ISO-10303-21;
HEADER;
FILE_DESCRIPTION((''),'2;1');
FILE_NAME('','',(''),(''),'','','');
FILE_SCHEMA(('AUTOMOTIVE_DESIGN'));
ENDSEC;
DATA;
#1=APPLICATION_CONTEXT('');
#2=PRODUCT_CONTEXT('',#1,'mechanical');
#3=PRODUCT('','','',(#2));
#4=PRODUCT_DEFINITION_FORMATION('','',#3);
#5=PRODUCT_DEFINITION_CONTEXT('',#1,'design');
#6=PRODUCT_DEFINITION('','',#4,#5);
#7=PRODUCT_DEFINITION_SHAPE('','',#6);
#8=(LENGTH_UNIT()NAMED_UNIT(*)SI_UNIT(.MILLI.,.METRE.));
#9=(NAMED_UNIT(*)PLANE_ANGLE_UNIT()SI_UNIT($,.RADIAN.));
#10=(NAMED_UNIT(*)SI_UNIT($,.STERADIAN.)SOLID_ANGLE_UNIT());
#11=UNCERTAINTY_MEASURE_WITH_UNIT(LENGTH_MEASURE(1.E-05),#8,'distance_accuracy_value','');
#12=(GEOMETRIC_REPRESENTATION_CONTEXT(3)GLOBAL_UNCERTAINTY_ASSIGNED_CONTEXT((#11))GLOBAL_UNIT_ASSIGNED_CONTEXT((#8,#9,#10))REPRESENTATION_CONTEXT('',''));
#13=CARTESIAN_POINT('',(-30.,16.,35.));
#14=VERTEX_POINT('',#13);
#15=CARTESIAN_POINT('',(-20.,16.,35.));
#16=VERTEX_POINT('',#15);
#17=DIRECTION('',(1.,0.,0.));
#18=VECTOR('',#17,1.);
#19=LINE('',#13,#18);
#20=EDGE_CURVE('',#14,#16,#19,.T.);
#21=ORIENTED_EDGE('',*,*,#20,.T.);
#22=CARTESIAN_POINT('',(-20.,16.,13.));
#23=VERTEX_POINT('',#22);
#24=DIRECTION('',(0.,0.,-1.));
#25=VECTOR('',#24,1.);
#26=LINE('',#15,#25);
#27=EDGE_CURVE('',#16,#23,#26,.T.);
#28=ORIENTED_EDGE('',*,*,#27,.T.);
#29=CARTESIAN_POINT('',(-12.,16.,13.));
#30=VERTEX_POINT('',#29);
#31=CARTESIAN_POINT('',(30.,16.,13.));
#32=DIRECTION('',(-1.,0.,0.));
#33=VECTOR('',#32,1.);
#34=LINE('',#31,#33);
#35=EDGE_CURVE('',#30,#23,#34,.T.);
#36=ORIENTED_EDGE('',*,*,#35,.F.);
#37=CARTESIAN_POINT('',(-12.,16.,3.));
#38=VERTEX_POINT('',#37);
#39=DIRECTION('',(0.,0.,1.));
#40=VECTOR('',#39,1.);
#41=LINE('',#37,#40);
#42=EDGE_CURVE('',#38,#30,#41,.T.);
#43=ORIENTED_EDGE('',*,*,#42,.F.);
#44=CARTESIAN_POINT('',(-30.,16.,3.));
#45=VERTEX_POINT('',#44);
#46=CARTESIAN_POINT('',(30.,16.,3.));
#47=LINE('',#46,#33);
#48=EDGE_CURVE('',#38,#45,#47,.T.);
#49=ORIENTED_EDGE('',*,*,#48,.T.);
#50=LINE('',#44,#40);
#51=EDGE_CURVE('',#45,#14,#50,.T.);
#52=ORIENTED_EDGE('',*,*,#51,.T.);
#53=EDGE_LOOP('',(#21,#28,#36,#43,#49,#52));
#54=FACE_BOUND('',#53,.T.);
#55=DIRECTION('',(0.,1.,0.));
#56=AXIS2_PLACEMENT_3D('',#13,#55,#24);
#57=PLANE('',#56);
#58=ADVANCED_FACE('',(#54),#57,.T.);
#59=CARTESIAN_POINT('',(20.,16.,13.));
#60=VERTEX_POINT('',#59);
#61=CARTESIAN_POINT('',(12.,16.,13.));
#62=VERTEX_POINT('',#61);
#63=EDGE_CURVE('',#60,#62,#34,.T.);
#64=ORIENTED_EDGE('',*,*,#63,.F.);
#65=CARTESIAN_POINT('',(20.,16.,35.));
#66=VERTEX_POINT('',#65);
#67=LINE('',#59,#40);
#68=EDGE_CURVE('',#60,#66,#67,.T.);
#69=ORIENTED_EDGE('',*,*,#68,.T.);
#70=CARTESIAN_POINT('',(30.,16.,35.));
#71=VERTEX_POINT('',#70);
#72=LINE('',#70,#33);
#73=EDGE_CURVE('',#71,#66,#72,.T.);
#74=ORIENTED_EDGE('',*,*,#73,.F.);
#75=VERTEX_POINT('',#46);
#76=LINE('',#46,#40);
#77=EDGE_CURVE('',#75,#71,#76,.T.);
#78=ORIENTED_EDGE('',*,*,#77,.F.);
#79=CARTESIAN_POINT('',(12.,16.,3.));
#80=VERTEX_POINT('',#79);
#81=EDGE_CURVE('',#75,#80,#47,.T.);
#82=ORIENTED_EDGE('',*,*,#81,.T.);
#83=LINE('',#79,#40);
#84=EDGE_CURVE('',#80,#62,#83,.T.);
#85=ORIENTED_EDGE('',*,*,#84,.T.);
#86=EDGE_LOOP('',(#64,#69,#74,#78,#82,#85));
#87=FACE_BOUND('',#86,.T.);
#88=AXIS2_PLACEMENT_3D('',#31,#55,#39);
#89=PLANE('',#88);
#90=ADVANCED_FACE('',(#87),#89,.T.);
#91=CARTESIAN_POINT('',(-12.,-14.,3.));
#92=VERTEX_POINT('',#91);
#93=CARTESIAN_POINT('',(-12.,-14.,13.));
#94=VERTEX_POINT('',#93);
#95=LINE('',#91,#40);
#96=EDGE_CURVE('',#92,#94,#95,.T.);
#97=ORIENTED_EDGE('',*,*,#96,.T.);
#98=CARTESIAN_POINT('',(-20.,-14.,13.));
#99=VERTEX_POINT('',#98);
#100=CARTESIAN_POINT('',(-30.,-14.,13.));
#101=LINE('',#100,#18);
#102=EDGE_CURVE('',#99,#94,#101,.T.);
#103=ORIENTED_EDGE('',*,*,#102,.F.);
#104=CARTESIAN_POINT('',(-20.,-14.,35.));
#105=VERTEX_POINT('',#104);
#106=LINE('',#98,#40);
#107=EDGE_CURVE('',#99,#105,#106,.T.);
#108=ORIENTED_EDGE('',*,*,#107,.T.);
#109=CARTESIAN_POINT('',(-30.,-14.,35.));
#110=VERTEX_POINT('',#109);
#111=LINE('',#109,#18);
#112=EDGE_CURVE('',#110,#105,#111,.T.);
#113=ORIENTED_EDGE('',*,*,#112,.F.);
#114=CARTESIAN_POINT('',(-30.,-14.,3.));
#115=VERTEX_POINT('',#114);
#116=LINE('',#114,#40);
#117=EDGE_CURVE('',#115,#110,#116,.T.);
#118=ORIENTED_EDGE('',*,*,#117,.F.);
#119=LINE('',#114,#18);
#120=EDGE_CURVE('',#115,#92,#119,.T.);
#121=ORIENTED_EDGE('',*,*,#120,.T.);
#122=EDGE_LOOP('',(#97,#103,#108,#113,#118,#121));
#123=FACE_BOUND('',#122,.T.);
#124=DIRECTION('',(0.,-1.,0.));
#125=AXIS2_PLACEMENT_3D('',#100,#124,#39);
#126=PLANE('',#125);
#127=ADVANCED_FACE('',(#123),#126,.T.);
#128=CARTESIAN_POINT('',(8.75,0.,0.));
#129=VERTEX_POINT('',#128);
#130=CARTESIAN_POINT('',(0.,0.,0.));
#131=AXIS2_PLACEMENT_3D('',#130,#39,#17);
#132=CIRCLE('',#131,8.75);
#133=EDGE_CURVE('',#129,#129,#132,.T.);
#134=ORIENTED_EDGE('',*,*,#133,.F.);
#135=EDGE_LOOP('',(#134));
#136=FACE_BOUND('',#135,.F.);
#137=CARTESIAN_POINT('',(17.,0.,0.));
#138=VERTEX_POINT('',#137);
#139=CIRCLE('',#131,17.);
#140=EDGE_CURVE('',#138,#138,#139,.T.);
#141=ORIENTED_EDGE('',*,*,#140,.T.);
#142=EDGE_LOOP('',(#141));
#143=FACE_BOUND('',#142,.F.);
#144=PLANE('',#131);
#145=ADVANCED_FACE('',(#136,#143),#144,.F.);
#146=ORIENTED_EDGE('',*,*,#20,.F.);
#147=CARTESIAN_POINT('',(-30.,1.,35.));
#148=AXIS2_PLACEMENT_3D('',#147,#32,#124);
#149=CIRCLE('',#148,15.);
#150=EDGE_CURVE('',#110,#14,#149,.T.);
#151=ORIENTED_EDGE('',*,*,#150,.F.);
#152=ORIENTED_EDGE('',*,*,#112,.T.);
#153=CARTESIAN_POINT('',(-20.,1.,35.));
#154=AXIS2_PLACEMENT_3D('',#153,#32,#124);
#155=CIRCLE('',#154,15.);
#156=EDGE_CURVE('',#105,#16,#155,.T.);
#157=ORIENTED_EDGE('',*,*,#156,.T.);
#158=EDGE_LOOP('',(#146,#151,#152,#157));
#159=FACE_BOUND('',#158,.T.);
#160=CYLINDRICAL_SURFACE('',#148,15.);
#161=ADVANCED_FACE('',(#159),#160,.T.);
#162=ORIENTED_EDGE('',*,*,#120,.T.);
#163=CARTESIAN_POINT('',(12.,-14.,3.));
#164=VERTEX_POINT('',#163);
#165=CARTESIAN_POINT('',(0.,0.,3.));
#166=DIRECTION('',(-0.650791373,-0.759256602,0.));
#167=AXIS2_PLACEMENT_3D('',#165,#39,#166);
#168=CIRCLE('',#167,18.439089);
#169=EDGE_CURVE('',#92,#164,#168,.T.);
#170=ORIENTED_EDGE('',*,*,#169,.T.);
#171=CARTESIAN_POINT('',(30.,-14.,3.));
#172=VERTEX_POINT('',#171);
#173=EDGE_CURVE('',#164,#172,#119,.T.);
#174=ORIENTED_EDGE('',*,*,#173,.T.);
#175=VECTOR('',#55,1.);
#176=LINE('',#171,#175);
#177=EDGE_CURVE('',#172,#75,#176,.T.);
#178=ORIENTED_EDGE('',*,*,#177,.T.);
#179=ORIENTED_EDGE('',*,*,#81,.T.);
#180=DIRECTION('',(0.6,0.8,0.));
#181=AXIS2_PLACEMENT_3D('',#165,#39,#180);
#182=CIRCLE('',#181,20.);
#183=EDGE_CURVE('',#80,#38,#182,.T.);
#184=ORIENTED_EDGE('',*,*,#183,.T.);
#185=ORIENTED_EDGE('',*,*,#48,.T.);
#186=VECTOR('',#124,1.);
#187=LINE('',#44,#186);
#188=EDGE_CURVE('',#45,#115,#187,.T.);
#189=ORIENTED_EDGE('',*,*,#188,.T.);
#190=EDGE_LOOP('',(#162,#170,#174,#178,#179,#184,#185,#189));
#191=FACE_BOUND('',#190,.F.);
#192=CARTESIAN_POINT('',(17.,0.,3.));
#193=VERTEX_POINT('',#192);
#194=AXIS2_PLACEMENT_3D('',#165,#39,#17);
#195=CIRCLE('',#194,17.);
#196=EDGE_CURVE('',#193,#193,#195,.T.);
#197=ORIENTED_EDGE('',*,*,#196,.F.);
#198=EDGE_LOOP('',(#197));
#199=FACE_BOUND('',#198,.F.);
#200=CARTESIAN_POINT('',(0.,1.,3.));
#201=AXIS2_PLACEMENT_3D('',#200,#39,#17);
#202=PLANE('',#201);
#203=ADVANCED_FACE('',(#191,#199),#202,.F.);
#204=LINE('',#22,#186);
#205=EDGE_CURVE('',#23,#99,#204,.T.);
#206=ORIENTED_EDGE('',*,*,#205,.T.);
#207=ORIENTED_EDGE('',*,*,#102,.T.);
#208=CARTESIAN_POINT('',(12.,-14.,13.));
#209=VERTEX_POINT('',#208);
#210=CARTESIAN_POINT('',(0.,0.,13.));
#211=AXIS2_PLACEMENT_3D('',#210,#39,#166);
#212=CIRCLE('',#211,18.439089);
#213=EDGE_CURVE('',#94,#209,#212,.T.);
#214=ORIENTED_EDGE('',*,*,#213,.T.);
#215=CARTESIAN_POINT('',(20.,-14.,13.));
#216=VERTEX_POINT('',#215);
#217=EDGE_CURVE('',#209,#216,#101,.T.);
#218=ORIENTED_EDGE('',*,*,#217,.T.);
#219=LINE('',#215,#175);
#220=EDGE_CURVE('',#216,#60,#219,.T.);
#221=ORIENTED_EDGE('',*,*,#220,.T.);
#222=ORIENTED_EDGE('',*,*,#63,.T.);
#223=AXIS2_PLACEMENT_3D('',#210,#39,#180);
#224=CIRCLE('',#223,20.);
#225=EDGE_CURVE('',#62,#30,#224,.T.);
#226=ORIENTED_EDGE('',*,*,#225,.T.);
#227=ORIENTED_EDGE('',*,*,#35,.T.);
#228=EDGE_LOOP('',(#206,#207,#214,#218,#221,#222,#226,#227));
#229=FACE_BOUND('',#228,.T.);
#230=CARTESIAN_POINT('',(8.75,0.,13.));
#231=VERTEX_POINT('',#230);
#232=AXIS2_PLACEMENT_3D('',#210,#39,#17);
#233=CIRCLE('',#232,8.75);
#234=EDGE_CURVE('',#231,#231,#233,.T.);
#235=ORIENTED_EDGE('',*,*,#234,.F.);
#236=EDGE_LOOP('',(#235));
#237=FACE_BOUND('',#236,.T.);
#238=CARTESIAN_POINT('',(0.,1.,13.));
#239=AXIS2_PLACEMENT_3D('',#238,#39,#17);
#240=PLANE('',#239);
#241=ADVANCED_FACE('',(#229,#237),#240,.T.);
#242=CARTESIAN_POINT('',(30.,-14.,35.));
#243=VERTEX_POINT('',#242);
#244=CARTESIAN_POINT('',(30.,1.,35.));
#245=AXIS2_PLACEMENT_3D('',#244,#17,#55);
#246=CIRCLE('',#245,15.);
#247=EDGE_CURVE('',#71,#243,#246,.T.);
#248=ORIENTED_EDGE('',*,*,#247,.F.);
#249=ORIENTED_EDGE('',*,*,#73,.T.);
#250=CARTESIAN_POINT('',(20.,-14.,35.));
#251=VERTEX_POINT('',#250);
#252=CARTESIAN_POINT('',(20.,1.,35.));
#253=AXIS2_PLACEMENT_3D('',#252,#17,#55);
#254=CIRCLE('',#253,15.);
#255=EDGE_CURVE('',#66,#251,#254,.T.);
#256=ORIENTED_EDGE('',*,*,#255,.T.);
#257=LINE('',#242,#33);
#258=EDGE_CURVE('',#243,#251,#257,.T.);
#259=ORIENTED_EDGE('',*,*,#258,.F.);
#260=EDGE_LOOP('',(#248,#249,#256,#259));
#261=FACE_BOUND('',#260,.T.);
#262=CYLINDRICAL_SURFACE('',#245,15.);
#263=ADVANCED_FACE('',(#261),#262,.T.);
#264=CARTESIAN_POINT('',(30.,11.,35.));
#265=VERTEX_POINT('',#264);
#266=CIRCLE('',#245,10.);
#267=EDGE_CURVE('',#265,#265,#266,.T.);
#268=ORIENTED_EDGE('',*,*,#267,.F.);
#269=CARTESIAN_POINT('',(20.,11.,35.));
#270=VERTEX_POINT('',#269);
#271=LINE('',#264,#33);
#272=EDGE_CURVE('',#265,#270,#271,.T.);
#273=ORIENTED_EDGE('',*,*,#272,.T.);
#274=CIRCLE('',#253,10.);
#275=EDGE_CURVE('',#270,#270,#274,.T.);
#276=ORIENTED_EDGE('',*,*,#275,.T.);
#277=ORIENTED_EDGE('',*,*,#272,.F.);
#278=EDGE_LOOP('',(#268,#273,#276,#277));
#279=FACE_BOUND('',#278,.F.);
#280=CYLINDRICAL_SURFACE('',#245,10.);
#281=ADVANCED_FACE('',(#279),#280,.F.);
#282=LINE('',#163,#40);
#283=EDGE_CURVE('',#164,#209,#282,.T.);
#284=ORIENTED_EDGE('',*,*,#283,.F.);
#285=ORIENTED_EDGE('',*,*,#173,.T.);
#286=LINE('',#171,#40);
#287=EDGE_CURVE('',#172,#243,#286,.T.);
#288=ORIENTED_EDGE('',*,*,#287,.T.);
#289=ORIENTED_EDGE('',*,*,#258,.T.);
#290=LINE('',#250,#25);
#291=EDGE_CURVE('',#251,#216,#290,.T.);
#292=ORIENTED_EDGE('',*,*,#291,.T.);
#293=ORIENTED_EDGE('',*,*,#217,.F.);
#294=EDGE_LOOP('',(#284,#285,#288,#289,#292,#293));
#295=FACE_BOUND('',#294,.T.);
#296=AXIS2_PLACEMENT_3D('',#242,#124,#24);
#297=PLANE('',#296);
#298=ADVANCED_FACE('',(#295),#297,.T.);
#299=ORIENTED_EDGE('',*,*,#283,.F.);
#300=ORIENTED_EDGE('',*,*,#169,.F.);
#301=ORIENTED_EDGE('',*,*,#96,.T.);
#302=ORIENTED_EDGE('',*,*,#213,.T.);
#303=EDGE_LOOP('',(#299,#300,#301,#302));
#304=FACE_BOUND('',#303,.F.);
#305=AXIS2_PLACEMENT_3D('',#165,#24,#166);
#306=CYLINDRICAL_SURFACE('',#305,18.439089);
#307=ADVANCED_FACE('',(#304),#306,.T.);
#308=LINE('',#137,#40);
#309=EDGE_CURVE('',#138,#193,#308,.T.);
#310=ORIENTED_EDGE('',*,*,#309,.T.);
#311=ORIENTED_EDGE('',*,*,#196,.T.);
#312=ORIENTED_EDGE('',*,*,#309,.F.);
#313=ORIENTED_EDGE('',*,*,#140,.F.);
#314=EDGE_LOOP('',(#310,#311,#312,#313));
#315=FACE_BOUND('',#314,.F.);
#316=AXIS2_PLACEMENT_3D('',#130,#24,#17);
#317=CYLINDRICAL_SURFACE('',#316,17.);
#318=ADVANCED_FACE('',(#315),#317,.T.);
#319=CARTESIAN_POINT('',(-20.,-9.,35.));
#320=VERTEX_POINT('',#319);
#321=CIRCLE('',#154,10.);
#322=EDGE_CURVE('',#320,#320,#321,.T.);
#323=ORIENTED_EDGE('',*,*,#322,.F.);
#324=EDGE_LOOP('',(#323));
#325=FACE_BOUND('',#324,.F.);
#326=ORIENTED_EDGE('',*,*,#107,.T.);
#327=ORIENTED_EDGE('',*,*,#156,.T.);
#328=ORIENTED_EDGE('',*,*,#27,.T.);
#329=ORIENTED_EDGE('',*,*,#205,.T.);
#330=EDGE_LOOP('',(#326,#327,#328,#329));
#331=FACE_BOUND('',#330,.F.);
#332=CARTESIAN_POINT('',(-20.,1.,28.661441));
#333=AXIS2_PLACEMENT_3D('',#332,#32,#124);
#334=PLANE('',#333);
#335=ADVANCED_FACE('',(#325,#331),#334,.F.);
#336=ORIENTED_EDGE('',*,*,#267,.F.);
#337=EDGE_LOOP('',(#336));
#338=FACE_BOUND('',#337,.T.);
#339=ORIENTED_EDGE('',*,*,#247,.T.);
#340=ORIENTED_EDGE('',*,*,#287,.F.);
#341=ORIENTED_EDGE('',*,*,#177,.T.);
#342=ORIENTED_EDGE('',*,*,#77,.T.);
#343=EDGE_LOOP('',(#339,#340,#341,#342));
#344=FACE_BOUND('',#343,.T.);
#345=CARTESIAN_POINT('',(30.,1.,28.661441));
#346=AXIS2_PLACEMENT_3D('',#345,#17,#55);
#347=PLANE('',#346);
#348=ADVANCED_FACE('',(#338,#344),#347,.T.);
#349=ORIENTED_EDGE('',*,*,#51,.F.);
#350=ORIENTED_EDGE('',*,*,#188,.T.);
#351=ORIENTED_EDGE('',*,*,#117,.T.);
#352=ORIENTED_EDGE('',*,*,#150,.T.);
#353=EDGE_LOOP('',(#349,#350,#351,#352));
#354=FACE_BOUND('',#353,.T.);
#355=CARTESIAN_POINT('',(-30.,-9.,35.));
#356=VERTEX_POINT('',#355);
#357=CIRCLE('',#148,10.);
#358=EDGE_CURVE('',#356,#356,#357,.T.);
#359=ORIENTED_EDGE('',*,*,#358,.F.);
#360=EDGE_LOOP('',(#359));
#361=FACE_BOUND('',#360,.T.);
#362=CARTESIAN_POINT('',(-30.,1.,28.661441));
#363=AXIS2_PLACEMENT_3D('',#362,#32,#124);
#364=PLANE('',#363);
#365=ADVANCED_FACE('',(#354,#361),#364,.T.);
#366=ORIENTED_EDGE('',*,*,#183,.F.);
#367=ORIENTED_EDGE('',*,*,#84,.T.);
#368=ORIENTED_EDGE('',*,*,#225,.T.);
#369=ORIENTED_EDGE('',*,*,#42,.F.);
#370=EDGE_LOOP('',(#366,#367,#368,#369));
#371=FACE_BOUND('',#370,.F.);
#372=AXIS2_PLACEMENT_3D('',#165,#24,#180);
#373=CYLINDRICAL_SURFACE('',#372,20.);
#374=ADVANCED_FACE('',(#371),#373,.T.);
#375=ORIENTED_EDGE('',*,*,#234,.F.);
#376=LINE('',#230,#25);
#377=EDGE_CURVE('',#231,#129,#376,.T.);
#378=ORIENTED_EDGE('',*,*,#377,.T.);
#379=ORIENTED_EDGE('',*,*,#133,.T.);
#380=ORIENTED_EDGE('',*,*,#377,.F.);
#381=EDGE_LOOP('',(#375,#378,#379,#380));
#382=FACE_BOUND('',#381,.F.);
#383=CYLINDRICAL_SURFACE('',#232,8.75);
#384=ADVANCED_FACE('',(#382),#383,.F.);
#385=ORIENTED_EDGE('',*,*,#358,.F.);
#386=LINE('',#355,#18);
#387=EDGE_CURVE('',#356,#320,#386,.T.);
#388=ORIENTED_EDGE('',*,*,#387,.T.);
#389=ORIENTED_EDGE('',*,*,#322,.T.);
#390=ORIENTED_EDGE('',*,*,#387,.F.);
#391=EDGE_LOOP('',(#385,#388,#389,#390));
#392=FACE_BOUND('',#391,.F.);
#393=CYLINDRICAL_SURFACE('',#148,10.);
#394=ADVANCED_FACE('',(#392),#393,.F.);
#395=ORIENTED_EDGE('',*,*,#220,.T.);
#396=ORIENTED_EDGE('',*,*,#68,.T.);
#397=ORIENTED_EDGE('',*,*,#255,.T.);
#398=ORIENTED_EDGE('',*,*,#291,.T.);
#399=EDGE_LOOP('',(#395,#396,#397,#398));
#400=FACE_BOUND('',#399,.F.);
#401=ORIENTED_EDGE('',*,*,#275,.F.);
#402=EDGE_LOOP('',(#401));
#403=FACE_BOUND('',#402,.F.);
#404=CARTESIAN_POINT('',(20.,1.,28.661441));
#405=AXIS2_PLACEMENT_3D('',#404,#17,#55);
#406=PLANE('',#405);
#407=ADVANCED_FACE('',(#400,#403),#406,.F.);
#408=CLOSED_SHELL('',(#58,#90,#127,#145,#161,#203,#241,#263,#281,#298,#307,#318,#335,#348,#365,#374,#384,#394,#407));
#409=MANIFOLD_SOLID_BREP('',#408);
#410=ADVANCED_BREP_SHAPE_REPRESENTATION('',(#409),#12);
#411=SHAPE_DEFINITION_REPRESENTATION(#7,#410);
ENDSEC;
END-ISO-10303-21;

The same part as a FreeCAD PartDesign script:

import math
import FreeCAD as App
import Part
import Sketcher

doc = App.newDocument("Part")
params = doc.addObject("Spreadsheet::Sheet", "Params")
for row, (alias, value) in enumerate([
    ("sketch1_diameter", "34 mm"),
    ("pad1_length", "3 mm"),
    ("sketch2_radius", "20 mm"),
    ("sketch2_width", "18 mm"),
    ("sketch2_height", "30 mm"),
    ("pad2_length", "10 mm"),
    ("sketch3_diameter", "20 mm"),
    ("sketch3_radius", "15 mm"),
    ("sketch3_height", "22 mm"),
    ("pad3_length", "10 mm"),
    ("sketch4_diameter", "20 mm"),
    ("sketch4_radius", "15 mm"),
    ("sketch4_height", "22 mm"),
    ("pad4_length", "10 mm"),
    ("sketch5_diameter", "17.5 mm"),
], start=1):
    params.set(f"A{row}", alias)
    params.set(f"B{row}", "=" + value)
    params.setAlias(f"B{row}", alias)

body = doc.addObject("PartDesign::Body", "Body")

# Sketch on XY plane
sketch1 = body.newObject("Sketcher::SketchObject", "Sketch")
sketch1.AttachmentSupport = (doc.getObject("XY_Plane"), [""])
sketch1.MapMode = "FlatFace"
sketch1.addGeometry(Part.Circle(App.Vector(0, 0, 0), App.Vector(0, 0, 1), 17), False)
sketch1.addConstraint([
    Sketcher.Constraint("Coincident", 0, 3, -1, 1),
    Sketcher.Constraint("Diameter", 0, 34.0),
])
sketch1.setExpression("Constraints[1]", "Params.sketch1_diameter")
pad1 = body.newObject("PartDesign::Pad", "Pad")
pad1.Profile = sketch1
pad1.setExpression("Length", "Params.pad1_length")

# Sketch on XY plane
sketch2 = body.newObject("Sketcher::SketchObject", "Sketch001")
sketch2.AttachmentSupport = (doc.getObject("XY_Plane"), [""])
sketch2.MapMode = "FlatFace"
sketch2.AttachmentOffset = App.Placement(App.Vector(0, 0, 3), App.Rotation())
sketch2.addGeometry([
    Part.LineSegment(App.Vector(-30, 16, 0), App.Vector(-30, -14, 0)),  # 0
    Part.LineSegment(App.Vector(-30, -14, 0), App.Vector(-12, -14, 0)),  # 1
    Part.ArcOfCircle(Part.Circle(App.Vector(0, 0, 0), App.Vector(0, 0, 1), 18), math.radians(-131), math.radians(-49)),  # 2
    Part.LineSegment(App.Vector(12, -14, 0), App.Vector(30, -14, 0)),  # 3
    Part.LineSegment(App.Vector(30, -14, 0), App.Vector(30, 16, 0)),  # 4
    Part.LineSegment(App.Vector(30, 16, 0), App.Vector(12, 16, 0)),  # 5
    Part.ArcOfCircle(Part.Circle(App.Vector(0, 0, 0), App.Vector(0, 0, 1), 20), math.radians(53), math.radians(127)),  # 6
    Part.LineSegment(App.Vector(-12, 16, 0), App.Vector(-30, 16, 0)),  # 7
], False)
sketch2.addConstraint([
    Sketcher.Constraint("Coincident", 0, 2, 1, 1),
    Sketcher.Constraint("Coincident", 1, 2, 2, 1),
    Sketcher.Constraint("Coincident", 2, 2, 3, 1),
    Sketcher.Constraint("Coincident", 3, 2, 4, 1),
    Sketcher.Constraint("Coincident", 4, 2, 5, 1),
    Sketcher.Constraint("Coincident", 5, 2, 6, 1),
    Sketcher.Constraint("Coincident", 6, 2, 7, 1),
    Sketcher.Constraint("Coincident", 7, 2, 0, 1),
    Sketcher.Constraint("Vertical", 0),
    Sketcher.Constraint("Horizontal", 1),
    Sketcher.Constraint("Horizontal", 3),
    Sketcher.Constraint("Vertical", 4),
    Sketcher.Constraint("Horizontal", 5),
    Sketcher.Constraint("Horizontal", 7),
    Sketcher.Constraint("Coincident", 2, 3, -1, 1),
    Sketcher.Constraint("Coincident", 6, 3, -1, 1),
    Sketcher.Constraint("Symmetric", 0, 2, 3, 2, -2),
    Sketcher.Constraint("Horizontal", 5, 2, 6, 2),
    Sketcher.Constraint("Vertical", 2, 2, 5, 2),
    Sketcher.Constraint("Radius", 6, 20.0),
    Sketcher.Constraint("DistanceX", 1, 1, 1, 2, 18.0),
    Sketcher.Constraint("DistanceY", 0, 2, 0, 1, 30.0),
    Sketcher.Constraint("DistanceX", 0, 2, -1, 1, 30.0),
])
sketch2.setExpression("Constraints[19]", "Params.sketch2_radius")
sketch2.setExpression("Constraints[20]", "Params.sketch2_width")
sketch2.setExpression("Constraints[21]", "Params.sketch2_height")
pad2 = body.newObject("PartDesign::Pad", "Pad001")
pad2.Profile = sketch2
pad2.setExpression("Length", "Params.pad2_length")

# Sketch on YZ plane
sketch3 = body.newObject("Sketcher::SketchObject", "Sketch002")
sketch3.AttachmentSupport = (doc.getObject("YZ_Plane"), [""])
sketch3.MapMode = "FlatFace"
sketch3.AttachmentOffset = App.Placement(App.Vector(0, 0, 30), App.Rotation())
sketch3.addGeometry([
    Part.LineSegment(App.Vector(-14, 35, 0), App.Vector(-14, 13, 0)),  # 0
    Part.LineSegment(App.Vector(-14, 13, 0), App.Vector(16, 13, 0)),  # 1
    Part.LineSegment(App.Vector(16, 13, 0), App.Vector(16, 35, 0)),  # 2
    Part.ArcOfCircle(Part.Circle(App.Vector(1, 35, 0), App.Vector(0, 0, 1), 15), math.radians(0), math.radians(180)),  # 3
    Part.Circle(App.Vector(1, 35, 0), App.Vector(0, 0, 1), 10),  # 4
], False)
sketch3.addConstraint([
    Sketcher.Constraint("Coincident", 0, 2, 1, 1),
    Sketcher.Constraint("Coincident", 1, 2, 2, 1),
    Sketcher.Constraint("Tangent", 2, 2, 3, 1),
    Sketcher.Constraint("Tangent", 3, 2, 0, 1),
    Sketcher.Constraint("Vertical", 0),
    Sketcher.Constraint("Horizontal", 1),
    Sketcher.Constraint("Vertical", 2),
    Sketcher.Constraint("Coincident", 4, 3, 3, 3),
    Sketcher.Constraint("Diameter", 4, 20.0),
    Sketcher.Constraint("Radius", 3, 15.0),
    Sketcher.Constraint("DistanceY", 0, 2, 0, 1, 22.0),
    Sketcher.Constraint("DistanceX", -1, 1, 3, 3, 1.0),
    Sketcher.Constraint("DistanceY", -1, 1, 3, 3, 35.0),
])
sketch3.setExpression("Constraints[8]", "Params.sketch3_diameter")
sketch3.setExpression("Constraints[9]", "Params.sketch3_radius")
sketch3.setExpression("Constraints[10]", "Params.sketch3_height")
pad3 = body.newObject("PartDesign::Pad", "Pad002")
pad3.Profile = sketch3
pad3.setExpression("Length", "Params.pad3_length")
pad3.Reversed = True

# Sketch on YZ plane
sketch4 = body.newObject("Sketcher::SketchObject", "Sketch003")
sketch4.AttachmentSupport = (doc.getObject("YZ_Plane"), [""])
sketch4.MapMode = "FlatFace"
sketch4.AttachmentOffset = App.Placement(App.Vector(0, 0, -30), App.Rotation())
sketch4.addGeometry([
    Part.LineSegment(App.Vector(16, 35, 0), App.Vector(16, 13, 0)),  # 0
    Part.LineSegment(App.Vector(16, 13, 0), App.Vector(-14, 13, 0)),  # 1
    Part.LineSegment(App.Vector(-14, 13, 0), App.Vector(-14, 35, 0)),  # 2
    Part.ArcOfCircle(Part.Circle(App.Vector(1, 35, 0), App.Vector(0, 0, 1), 15), math.radians(0), math.radians(180)),  # 3
    Part.Circle(App.Vector(1, 35, 0), App.Vector(0, 0, 1), 10),  # 4
], False)
sketch4.addConstraint([
    Sketcher.Constraint("Coincident", 0, 2, 1, 1),
    Sketcher.Constraint("Coincident", 1, 2, 2, 1),
    Sketcher.Constraint("Tangent", 2, 2, 3, 2),
    Sketcher.Constraint("Tangent", 3, 1, 0, 1),
    Sketcher.Constraint("Vertical", 0),
    Sketcher.Constraint("Horizontal", 1),
    Sketcher.Constraint("Vertical", 2),
    Sketcher.Constraint("Coincident", 4, 3, 3, 3),
    Sketcher.Constraint("Diameter", 4, 20.0),
    Sketcher.Constraint("Radius", 3, 15.0),
    Sketcher.Constraint("DistanceY", 0, 2, 0, 1, 22.0),
    Sketcher.Constraint("DistanceX", -1, 1, 3, 3, 1.0),
    Sketcher.Constraint("DistanceY", -1, 1, 3, 3, 35.0),
])
sketch4.setExpression("Constraints[8]", "Params.sketch4_diameter")
sketch4.setExpression("Constraints[9]", "Params.sketch4_radius")
sketch4.setExpression("Constraints[10]", "Params.sketch4_height")
pad4 = body.newObject("PartDesign::Pad", "Pad003")
pad4.Profile = sketch4
pad4.setExpression("Length", "Params.pad4_length")

# Sketch on XY plane
sketch5 = body.newObject("Sketcher::SketchObject", "Sketch004")
sketch5.AttachmentSupport = (doc.getObject("XY_Plane"), [""])
sketch5.MapMode = "FlatFace"
sketch5.AttachmentOffset = App.Placement(App.Vector(0, 0, 13), App.Rotation())
sketch5.addGeometry(Part.Circle(App.Vector(0, 0, 0), App.Vector(0, 0, 1), 9), False)
sketch5.addConstraint([
    Sketcher.Constraint("Coincident", 0, 3, -1, 1),
    Sketcher.Constraint("Diameter", 0, 17.5),
])
sketch5.setExpression("Constraints[1]", "Params.sketch5_diameter")
pocket1 = body.newObject("PartDesign::Pocket", "Pocket")
pocket1.Profile = sketch5
pocket1.Type = "ThroughAll"

doc.recompute()
